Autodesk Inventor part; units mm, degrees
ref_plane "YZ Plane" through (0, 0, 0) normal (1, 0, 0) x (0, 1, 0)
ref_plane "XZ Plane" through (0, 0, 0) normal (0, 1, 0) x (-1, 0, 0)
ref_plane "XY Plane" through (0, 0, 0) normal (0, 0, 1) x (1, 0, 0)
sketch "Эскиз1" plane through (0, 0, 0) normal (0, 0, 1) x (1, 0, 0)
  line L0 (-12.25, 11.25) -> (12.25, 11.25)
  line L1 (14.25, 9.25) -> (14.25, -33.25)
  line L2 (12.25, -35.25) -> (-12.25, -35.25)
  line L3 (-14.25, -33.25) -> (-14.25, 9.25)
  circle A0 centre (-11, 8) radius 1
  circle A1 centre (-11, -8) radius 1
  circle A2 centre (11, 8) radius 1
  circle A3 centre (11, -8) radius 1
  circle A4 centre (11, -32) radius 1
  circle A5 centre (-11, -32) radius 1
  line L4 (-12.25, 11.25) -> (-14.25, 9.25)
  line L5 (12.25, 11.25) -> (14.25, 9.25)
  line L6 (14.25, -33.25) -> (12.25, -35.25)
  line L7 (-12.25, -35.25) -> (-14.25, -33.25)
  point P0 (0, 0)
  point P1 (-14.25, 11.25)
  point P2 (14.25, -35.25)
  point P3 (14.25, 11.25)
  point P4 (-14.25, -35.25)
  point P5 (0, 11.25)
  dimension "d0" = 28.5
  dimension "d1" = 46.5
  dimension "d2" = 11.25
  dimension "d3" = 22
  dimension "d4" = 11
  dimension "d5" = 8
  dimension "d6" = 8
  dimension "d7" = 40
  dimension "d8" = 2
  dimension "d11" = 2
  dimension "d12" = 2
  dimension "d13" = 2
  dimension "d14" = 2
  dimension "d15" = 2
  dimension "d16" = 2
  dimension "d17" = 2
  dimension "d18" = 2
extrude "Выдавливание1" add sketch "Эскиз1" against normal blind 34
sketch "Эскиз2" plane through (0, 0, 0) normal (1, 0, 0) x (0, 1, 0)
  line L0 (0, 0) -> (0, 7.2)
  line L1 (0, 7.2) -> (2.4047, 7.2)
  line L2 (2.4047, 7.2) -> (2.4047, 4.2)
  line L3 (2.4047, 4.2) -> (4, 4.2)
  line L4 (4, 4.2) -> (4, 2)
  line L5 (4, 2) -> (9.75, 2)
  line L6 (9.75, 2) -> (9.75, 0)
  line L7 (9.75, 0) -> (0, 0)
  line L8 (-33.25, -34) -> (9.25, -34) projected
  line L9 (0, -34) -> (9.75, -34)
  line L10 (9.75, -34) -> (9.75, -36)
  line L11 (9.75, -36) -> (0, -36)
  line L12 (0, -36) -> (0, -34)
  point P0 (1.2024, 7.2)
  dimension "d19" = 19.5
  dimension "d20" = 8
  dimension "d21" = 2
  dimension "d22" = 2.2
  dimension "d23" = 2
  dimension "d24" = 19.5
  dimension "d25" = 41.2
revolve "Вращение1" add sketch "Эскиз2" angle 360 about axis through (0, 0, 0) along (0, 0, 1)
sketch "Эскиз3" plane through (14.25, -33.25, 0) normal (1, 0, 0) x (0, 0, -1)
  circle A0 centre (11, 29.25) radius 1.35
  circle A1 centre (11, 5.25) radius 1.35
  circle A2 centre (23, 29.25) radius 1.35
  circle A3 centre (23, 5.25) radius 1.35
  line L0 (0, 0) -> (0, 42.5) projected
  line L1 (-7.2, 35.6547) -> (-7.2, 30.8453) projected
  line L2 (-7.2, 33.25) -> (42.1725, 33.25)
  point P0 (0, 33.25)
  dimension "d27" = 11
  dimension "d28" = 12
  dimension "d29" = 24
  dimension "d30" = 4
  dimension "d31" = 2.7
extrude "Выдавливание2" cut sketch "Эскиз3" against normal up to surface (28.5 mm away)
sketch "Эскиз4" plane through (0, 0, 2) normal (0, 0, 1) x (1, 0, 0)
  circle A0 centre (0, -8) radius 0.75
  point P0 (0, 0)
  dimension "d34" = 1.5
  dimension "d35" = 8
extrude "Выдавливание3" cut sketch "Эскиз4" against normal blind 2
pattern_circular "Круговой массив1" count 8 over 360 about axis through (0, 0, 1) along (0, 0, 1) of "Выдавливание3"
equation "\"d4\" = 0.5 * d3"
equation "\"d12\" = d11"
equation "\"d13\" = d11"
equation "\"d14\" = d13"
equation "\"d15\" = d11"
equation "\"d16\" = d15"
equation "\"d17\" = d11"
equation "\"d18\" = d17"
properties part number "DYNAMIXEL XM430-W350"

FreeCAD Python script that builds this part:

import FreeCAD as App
import Part
import Sketcher
Q = App.Units.Quantity

doc = App.newDocument("Part")
params = doc.addObject("Spreadsheet::Sheet", "Params")
for row, (alias, value) in enumerate([
    ("sketch1_diameter", "2 mm"),
    ("sketch1_height", "42.5 mm"),
    ("pad1_length", "34 mm"),
    ("sketch2_height", "2 mm"),
    ("sketch2_height2", "2.2 mm"),
    ("sketch2_height3", "3 mm"),
    ("sketch2_width", "9.75 mm"),
    ("revolution_angle", "360 deg"),
    ("sketch3_diameter", "2.7 mm"),
    ("pocket1_length", "28.5 mm"),
    ("sketch4_diameter", "1.5 mm"),
    ("pocket2_length", "2 mm"),
], start=1):
    params.set(f"A{row}", alias)
    params.set(f"B{row}", "=" + value)
    params.setAlias(f"B{row}", alias)

body = doc.addObject("PartDesign::Body", "Body")

sketch1 = body.newObject("Sketcher::SketchObject", "Sketch")
sketch1.AttachmentSupport = (doc.getObject("XY_Plane"), [""])
sketch1.MapMode = "FlatFace"
sketch1.addGeometry(Part.LineSegment(App.Vector(12.2, 11.2, 0), App.Vector(-12.2, 11.2, 0)), False)
sketch1.addGeometry(Part.LineSegment(App.Vector(-12.2, 11.2, 0), App.Vector(-14.2, 9.2, 0)), False)
sketch1.addGeometry(Part.LineSegment(App.Vector(-14.2, 9.2, 0), App.Vector(-14.2, -33.2, 0)), False)
sketch1.addGeometry(Part.LineSegment(App.Vector(-14.2, -33.2, 0), App.Vector(-12.2, -35.2, 0)), False)
sketch1.addGeometry(Part.LineSegment(App.Vector(-12.2, -35.2, 0), App.Vector(12.2, -35.2, 0)), False)
sketch1.addGeometry(Part.LineSegment(App.Vector(12.2, -35.2, 0), App.Vector(14.2, -33.2, 0)), False)
sketch1.addGeometry(Part.LineSegment(App.Vector(14.2, -33.2, 0), App.Vector(14.2, 9.2, 0)), False)
sketch1.addGeometry(Part.LineSegment(App.Vector(14.2, 9.2, 0), App.Vector(12.2, 11.2, 0)), False)
sketch1.addGeometry(Part.Circle(App.Vector(-11, -32, 0), App.Vector(0, 0, 1), 1), False)
sketch1.addGeometry(Part.Circle(App.Vector(11, -32, 0), App.Vector(0, 0, 1), 1), False)
sketch1.addGeometry(Part.Circle(App.Vector(-11, -8, 0), App.Vector(0, 0, 1), 1), False)
sketch1.addGeometry(Part.Circle(App.Vector(-11, 8, 0), App.Vector(0, 0, 1), 1), False)
sketch1.addGeometry(Part.Circle(App.Vector(11, -8, 0), App.Vector(0, 0, 1), 1), False)
sketch1.addGeometry(Part.Circle(App.Vector(11, 8, 0), App.Vector(0, 0, 1), 1), False)
sketch1.addConstraint(Sketcher.Constraint("Coincident", 0, 2, 1, 1))
sketch1.addConstraint(Sketcher.Constraint("Coincident", 1, 2, 2, 1))
sketch1.addConstraint(Sketcher.Constraint("Coincident", 2, 2, 3, 1))
sketch1.addConstraint(Sketcher.Constraint("Coincident", 3, 2, 4, 1))
sketch1.addConstraint(Sketcher.Constraint("Coincident", 4, 2, 5, 1))
sketch1.addConstraint(Sketcher.Constraint("Coincident", 5, 2, 6, 1))
sketch1.addConstraint(Sketcher.Constraint("Coincident", 6, 2, 7, 1))
sketch1.addConstraint(Sketcher.Constraint("Coincident", 7, 2, 0, 1))
sketch1.addConstraint(Sketcher.Constraint("Horizontal", 0))
sketch1.addConstraint(Sketcher.Constraint("Vertical", 2))
sketch1.addConstraint(Sketcher.Constraint("Horizontal", 4))
sketch1.addConstraint(Sketcher.Constraint("Vertical", 6))
sketch1.addConstraint(Sketcher.Constraint("Equal", 8, 9))
sketch1.addConstraint(Sketcher.Constraint("Equal", 9, 10))
sketch1.addConstraint(Sketcher.Constraint("Equal", 10, 11))
sketch1.addConstraint(Sketcher.Constraint("Equal", 11, 12))
sketch1.addConstraint(Sketcher.Constraint("Equal", 12, 13))
sketch1.addConstraint(Sketcher.Constraint("Symmetric", 11, 3, 12, 3, -1, 1))
sketch1.addConstraint(Sketcher.Constraint("Symmetric", 10, 3, 13, 3, -1, 1))
sketch1.addConstraint(Sketcher.Constraint("Symmetric", 8, 3, 9, 3, -2))
sketch1.addConstraint(Sketcher.Constraint("Symmetric", 10, 3, 12, 3, -2))
sketch1.addConstraint(Sketcher.Constraint("Symmetric", 2, 2, 5, 2, -2))
sketch1.addConstraint(Sketcher.Constraint("Perpendicular", 1, 3))
sketch1.addConstraint(Sketcher.Constraint("Perpendicular", 3, 5))
sketch1.addConstraint(Sketcher.Constraint("Perpendicular", 5, 7))
sketch1.addConstraint(Sketcher.Constraint("Horizontal", 1, 2, 6, 2))
sketch1.addConstraint(Sketcher.Constraint("Vertical", 8, 3, 10, 3))
sketch1.addConstraint(Sketcher.Constraint("Vertical", 0, 2, 3, 2))
sketch1.addConstraint(Sketcher.Constraint("Vertical", 4, 2, 7, 2))
sketch1.addConstraint(Sketcher.Constraint("Diameter", 8, Q("2 mm")))
sketch1.addConstraint(Sketcher.Constraint("DistanceX", 8, 3, -1, 1, Q("11 mm")))
sketch1.addConstraint(Sketcher.Constraint("DistanceY", 10, 3, -1, 1, Q("8 mm")))
sketch1.addConstraint(Sketcher.Constraint("DistanceY", 8, 3, 11, 3, Q("40 mm")))
sketch1.addConstraint(Sketcher.Constraint("DistanceX", 1, 2, 0, 2, Q("2 mm")))
sketch1.addConstraint(Sketcher.Constraint("DistanceX", 1, 2, 6, 2, Q("28.5 mm")))
sketch1.addConstraint(Sketcher.Constraint("DistanceY", -1, 1, 0, 2, Q("11.25 mm")))
sketch1.addConstraint(Sketcher.Constraint("DistanceY", 2, 2, 2, 1, Q("42.5 mm")))
sketch1.setExpression("Constraints[29]", "Params.sketch1_diameter")
sketch1.setExpression("Constraints[36]", "Params.sketch1_height")
pad1 = body.newObject("PartDesign::Pad", "Pad")
pad1.Profile = sketch1
pad1.setExpression("Length", "Params.pad1_length")
pad1.Reversed = True

sketch2 = body.newObject("Sketcher::SketchObject", "Sketch001")
sketch2.AttachmentSupport = (doc.getObject("YZ_Plane"), [""])
sketch2.MapMode = "FlatFace"
sketch2.addGeometry(Part.LineSegment(App.Vector(0, 7.2, 0), App.Vector(0, 0, 0)), False)
sketch2.addGeometry(Part.LineSegment(App.Vector(0, 0, 0), App.Vector(9.8, 0, 0)), False)
sketch2.addGeometry(Part.LineSegment(App.Vector(9.8, 0, 0), App.Vector(9.8, 2, 0)), False)
sketch2.addGeometry(Part.LineSegment(App.Vector(9.8, 2, 0), App.Vector(4, 2, 0)), False)
sketch2.addGeometry(Part.LineSegment(App.Vector(4, 2, 0), App.Vector(4, 4.2, 0)), False)
sketch2.addGeometry(Part.LineSegment(App.Vector(4, 4.2, 0), App.Vector(2.4, 4.2, 0)), False)
sketch2.addGeometry(Part.LineSegment(App.Vector(2.4, 4.2, 0), App.Vector(2.4, 7.2, 0)), False)
sketch2.addGeometry(Part.LineSegment(App.Vector(2.4, 7.2, 0), App.Vector(0, 7.2, 0)), False)
sketch2.addGeometry(Part.LineSegment(App.Vector(9.8, -34, 0), App.Vector(0, -34, 0)), False)
sketch2.addGeometry(Part.LineSegment(App.Vector(0, -34, 0), App.Vector(0, -36, 0)), False)
sketch2.addGeometry(Part.LineSegment(App.Vector(0, -36, 0), App.Vector(9.8, -36, 0)), False)
sketch2.addGeometry(Part.LineSegment(App.Vector(9.8, -36, 0), App.Vector(9.8, -34, 0)), False)
sketch2.addConstraint(Sketcher.Constraint("Coincident", 0, 2, 1, 1))
sketch2.addConstraint(Sketcher.Constraint("Coincident", 1, 2, 2, 1))
sketch2.addConstraint(Sketcher.Constraint("Coincident", 2, 2, 3, 1))
sketch2.addConstraint(Sketcher.Constraint("Coincident", 3, 2, 4, 1))
sketch2.addConstraint(Sketcher.Constraint("Coincident", 4, 2, 5, 1))
sketch2.addConstraint(Sketcher.Constraint("Coincident", 5, 2, 6, 1))
sketch2.addConstraint(Sketcher.Constraint("Coincident", 6, 2, 7, 1))
sketch2.addConstraint(Sketcher.Constraint("Coincident", 7, 2, 0, 1))
sketch2.addConstraint(Sketcher.Constraint("Coincident", 8, 2, 9, 1))
sketch2.addConstraint(Sketcher.Constraint("Coincident", 9, 2, 10, 1))
sketch2.addConstraint(Sketcher.Constraint("Coincident", 10, 2, 11, 1))
sketch2.addConstraint(Sketcher.Constraint("Coincident", 11, 2, 8, 1))
sketch2.addConstraint(Sketcher.Constraint("Vertical", 0))
sketch2.addConstraint(Sketcher.Constraint("Horizontal", 1))
sketch2.addConstraint(Sketcher.Constraint("Vertical", 2))
sketch2.addConstraint(Sketcher.Constraint("Horizontal", 3))
sketch2.addConstraint(Sketcher.Constraint("Vertical", 4))
sketch2.addConstraint(Sketcher.Constraint("Horizontal", 5))
sketch2.addConstraint(Sketcher.Constraint("Vertical", 6))
sketch2.addConstraint(Sketcher.Constraint("Horizontal", 7))
sketch2.addConstraint(Sketcher.Constraint("Horizontal", 8))
sketch2.addConstraint(Sketcher.Constraint("Vertical", 9))
sketch2.addConstraint(Sketcher.Constraint("Horizontal", 10))
sketch2.addConstraint(Sketcher.Constraint("Vertical", 11))
sketch2.addConstraint(Sketcher.Constraint("Coincident", 0, 2, -1, 1))
sketch2.addConstraint(Sketcher.Constraint("PointOnObject", 8, 2, -2))
sketch2.addConstraint(Sketcher.Constraint("Vertical", 2, 2, 10, 2))
sketch2.addConstraint(Sketcher.Constraint("Equal", 2, 9))
sketch2.addConstraint(Sketcher.Constraint("DistanceY", 2, 1, 2, 2, Q("2 mm")))
sketch2.addConstraint(Sketcher.Constraint("DistanceY", 4, 1, 4, 2, Q("2.2 mm")))
sketch2.addConstraint(Sketcher.Constraint("DistanceY", 6, 1, 6, 2, Q("3 mm")))
sketch2.addConstraint(Sketcher.Constraint("DistanceX", -1, 1, 3, 2, Q("4 mm")))
sketch2.addConstraint(Sketcher.Constraint("DistanceY", 8, 2, -1, 1, Q("34 mm")))
sketch2.addConstraint(Sketcher.Constraint("DistanceX", 1, 1, 1, 2, Q("9.75 mm")))
sketch2.addConstraint(Sketcher.Constraint("DistanceX", 5, 2, 5, 1, Q("1.5953 mm")))
sketch2.setExpression("Constraints[28]", "Params.sketch2_height")
sketch2.setExpression("Constraints[29]", "Params.sketch2_height2")
sketch2.setExpression("Constraints[30]", "Params.sketch2_height3")
sketch2.setExpression("Constraints[33]", "Params.sketch2_width")
revolution = body.newObject("PartDesign::Revolution", "Revolution")
revolution.Profile = sketch2
revolution.ReferenceAxis = (sketch2, ["V_Axis"])
revolution.setExpression("Angle", "Params.revolution_angle")

sketch3 = body.newObject("Sketcher::SketchObject", "Sketch002")
sketch3.AttachmentSupport = (doc.getObject("YZ_Plane"), [""])
sketch3.MapMode = "FlatFace"
sketch3.AttachmentOffset = App.Placement(App.Vector(0, 0, 14.25), App.Rotation())
sketch3.addGeometry(Part.Circle(App.Vector(-4, -11, 0), App.Vector(0, 0, 1), 1.4), False)
sketch3.addGeometry(Part.Circle(App.Vector(-28, -11, 0), App.Vector(0, 0, 1), 1.4), False)
sketch3.addGeometry(Part.Circle(App.Vector(-4, -23, 0), App.Vector(0, 0, 1), 1.4), False)
sketch3.addGeometry(Part.Circle(App.Vector(-28, -23, 0), App.Vector(0, 0, 1), 1.4), False)
sketch3.addConstraint(Sketcher.Constraint("Equal", 0, 1))
sketch3.addConstraint(Sketcher.Constraint("Equal", 1, 2))
sketch3.addConstraint(Sketcher.Constraint("Equal", 2, 3))
sketch3.addConstraint(Sketcher.Constraint("Horizontal", 0, 3, 1, 3))
sketch3.addConstraint(Sketcher.Constraint("Horizontal", 2, 3, 3, 3))
sketch3.addConstraint(Sketcher.Constraint("Vertical", 0, 3, 2, 3))
sketch3.addConstraint(Sketcher.Constraint("Vertical", 1, 3, 3, 3))
sketch3.addConstraint(Sketcher.Constraint("Diameter", 0, Q("2.7 mm")))
sketch3.addConstraint(Sketcher.Constraint("DistanceX", 0, 3, -1, 1, Q("4 mm")))
sketch3.addConstraint(Sketcher.Constraint("DistanceY", 0, 3, -1, 1, Q("11 mm")))
sketch3.addConstraint(Sketcher.Constraint("DistanceX", 1, 3, 0, 3, Q("24 mm")))
sketch3.addConstraint(Sketcher.Constraint("DistanceY", 2, 3, 0, 3, Q("12 mm")))
sketch3.setExpression("Constraints[7]", "Params.sketch3_diameter")
pocket1 = body.newObject("PartDesign::Pocket", "Pocket")
pocket1.Profile = sketch3
pocket1.setExpression("Length", "Params.pocket1_length")

sketch4 = body.newObject("Sketcher::SketchObject", "Sketch003")
sketch4.AttachmentSupport = (doc.getObject("XY_Plane"), [""])
sketch4.MapMode = "FlatFace"
sketch4.AttachmentOffset = App.Placement(App.Vector(0, 0, 2), App.Rotation())
sketch4.addGeometry(Part.Circle(App.Vector(0, -8, 0), App.Vector(0, 0, 1), 0.8), False)
sketch4.addConstraint(Sketcher.Constraint("PointOnObject", 0, 3, -2))
sketch4.addConstraint(Sketcher.Constraint("Diameter", 0, Q("1.5 mm")))
sketch4.addConstraint(Sketcher.Constraint("DistanceY", 0, 3, -1, 1, Q("8 mm")))
sketch4.setExpression("Constraints[1]", "Params.sketch4_diameter")
pocket2 = body.newObject("PartDesign::Pocket", "Pocket001")
pocket2.Profile = sketch4
pocket2.setExpression("Length", "Params.pocket2_length")
doc.recompute()

polarpattern = body.newObject("PartDesign::PolarPattern", "PolarPattern")
polarpattern.Originals = [pocket2]
polarpattern.Axis = (doc.getObject("Z_Axis"), [""])
polarpattern.Angle = 360
polarpattern.Occurrences = 8
body.Tip = polarpattern

doc.recompute()
